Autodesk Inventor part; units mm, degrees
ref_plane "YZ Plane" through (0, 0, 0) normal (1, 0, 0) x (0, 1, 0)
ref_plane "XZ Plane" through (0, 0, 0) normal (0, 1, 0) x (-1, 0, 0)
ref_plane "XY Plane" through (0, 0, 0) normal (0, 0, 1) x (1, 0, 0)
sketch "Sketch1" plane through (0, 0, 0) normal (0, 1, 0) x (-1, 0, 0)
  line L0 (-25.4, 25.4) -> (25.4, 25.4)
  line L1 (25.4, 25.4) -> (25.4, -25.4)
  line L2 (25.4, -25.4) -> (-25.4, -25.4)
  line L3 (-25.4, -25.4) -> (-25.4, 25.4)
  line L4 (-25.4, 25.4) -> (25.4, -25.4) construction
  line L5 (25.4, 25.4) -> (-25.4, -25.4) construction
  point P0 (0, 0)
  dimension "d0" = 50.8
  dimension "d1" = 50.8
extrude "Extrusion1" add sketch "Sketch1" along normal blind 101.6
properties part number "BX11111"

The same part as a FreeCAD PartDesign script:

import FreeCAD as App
import Part
import Sketcher
Q = App.Units.Quantity


def add_polygon(sketch, points):
    """Adds a closed chain of lines whose ends are joined by coincident constraints."""
    first, n = sketch.GeometryCount, len(points)
    for a, b in zip(points, points[1:] + points[:1]):
        sketch.addGeometry(Part.LineSegment(App.Vector(*a, 0), App.Vector(*b, 0)), False)
    for i in range(n):
        sketch.addConstraint(Sketcher.Constraint("Coincident", first + i, 2, first + (i + 1) % n, 1))

doc = App.newDocument("Part")
params = doc.addObject("Spreadsheet::Sheet", "Params")
for row, (alias, value) in enumerate([
    ("sketch1_width", "2 in"),
    ("pad1_length", "4 in"),
], start=1):
    params.set(f"A{row}", alias)
    params.set(f"B{row}", "=" + value)
    params.setAlias(f"B{row}", alias)

body = doc.addObject("PartDesign::Body", "Body")

sketch1 = body.newObject("Sketcher::SketchObject", "Sketch")
sketch1.AttachmentSupport = (doc.getObject("XZ_Plane"), [""])
sketch1.MapMode = "FlatFace"
add_polygon(sketch1, [(-25, 25), (25, 25), (25, -25), (-25, -25)])
sketch1.addConstraint([
    Sketcher.Constraint("Horizontal", 0),
    Sketcher.Constraint("Vertical", 1),
    Sketcher.Constraint("Horizontal", 2),
    Sketcher.Constraint("Vertical", 3),
    Sketcher.Constraint("Symmetric", 0, 2, 2, 2, -1, 1),
    Sketcher.Constraint("Equal", 2, 1),
    Sketcher.Constraint("DistanceX", 0, 1, 0, 2, Q("2 in")),
])
sketch1.setExpression("Constraints[10]", "Params.sketch1_width")
pad1 = body.newObject("PartDesign::Pad", "Pad")
pad1.Profile = sketch1
pad1.setExpression("Length", "Params.pad1_length")
pad1.Reversed = True

doc.recompute()
